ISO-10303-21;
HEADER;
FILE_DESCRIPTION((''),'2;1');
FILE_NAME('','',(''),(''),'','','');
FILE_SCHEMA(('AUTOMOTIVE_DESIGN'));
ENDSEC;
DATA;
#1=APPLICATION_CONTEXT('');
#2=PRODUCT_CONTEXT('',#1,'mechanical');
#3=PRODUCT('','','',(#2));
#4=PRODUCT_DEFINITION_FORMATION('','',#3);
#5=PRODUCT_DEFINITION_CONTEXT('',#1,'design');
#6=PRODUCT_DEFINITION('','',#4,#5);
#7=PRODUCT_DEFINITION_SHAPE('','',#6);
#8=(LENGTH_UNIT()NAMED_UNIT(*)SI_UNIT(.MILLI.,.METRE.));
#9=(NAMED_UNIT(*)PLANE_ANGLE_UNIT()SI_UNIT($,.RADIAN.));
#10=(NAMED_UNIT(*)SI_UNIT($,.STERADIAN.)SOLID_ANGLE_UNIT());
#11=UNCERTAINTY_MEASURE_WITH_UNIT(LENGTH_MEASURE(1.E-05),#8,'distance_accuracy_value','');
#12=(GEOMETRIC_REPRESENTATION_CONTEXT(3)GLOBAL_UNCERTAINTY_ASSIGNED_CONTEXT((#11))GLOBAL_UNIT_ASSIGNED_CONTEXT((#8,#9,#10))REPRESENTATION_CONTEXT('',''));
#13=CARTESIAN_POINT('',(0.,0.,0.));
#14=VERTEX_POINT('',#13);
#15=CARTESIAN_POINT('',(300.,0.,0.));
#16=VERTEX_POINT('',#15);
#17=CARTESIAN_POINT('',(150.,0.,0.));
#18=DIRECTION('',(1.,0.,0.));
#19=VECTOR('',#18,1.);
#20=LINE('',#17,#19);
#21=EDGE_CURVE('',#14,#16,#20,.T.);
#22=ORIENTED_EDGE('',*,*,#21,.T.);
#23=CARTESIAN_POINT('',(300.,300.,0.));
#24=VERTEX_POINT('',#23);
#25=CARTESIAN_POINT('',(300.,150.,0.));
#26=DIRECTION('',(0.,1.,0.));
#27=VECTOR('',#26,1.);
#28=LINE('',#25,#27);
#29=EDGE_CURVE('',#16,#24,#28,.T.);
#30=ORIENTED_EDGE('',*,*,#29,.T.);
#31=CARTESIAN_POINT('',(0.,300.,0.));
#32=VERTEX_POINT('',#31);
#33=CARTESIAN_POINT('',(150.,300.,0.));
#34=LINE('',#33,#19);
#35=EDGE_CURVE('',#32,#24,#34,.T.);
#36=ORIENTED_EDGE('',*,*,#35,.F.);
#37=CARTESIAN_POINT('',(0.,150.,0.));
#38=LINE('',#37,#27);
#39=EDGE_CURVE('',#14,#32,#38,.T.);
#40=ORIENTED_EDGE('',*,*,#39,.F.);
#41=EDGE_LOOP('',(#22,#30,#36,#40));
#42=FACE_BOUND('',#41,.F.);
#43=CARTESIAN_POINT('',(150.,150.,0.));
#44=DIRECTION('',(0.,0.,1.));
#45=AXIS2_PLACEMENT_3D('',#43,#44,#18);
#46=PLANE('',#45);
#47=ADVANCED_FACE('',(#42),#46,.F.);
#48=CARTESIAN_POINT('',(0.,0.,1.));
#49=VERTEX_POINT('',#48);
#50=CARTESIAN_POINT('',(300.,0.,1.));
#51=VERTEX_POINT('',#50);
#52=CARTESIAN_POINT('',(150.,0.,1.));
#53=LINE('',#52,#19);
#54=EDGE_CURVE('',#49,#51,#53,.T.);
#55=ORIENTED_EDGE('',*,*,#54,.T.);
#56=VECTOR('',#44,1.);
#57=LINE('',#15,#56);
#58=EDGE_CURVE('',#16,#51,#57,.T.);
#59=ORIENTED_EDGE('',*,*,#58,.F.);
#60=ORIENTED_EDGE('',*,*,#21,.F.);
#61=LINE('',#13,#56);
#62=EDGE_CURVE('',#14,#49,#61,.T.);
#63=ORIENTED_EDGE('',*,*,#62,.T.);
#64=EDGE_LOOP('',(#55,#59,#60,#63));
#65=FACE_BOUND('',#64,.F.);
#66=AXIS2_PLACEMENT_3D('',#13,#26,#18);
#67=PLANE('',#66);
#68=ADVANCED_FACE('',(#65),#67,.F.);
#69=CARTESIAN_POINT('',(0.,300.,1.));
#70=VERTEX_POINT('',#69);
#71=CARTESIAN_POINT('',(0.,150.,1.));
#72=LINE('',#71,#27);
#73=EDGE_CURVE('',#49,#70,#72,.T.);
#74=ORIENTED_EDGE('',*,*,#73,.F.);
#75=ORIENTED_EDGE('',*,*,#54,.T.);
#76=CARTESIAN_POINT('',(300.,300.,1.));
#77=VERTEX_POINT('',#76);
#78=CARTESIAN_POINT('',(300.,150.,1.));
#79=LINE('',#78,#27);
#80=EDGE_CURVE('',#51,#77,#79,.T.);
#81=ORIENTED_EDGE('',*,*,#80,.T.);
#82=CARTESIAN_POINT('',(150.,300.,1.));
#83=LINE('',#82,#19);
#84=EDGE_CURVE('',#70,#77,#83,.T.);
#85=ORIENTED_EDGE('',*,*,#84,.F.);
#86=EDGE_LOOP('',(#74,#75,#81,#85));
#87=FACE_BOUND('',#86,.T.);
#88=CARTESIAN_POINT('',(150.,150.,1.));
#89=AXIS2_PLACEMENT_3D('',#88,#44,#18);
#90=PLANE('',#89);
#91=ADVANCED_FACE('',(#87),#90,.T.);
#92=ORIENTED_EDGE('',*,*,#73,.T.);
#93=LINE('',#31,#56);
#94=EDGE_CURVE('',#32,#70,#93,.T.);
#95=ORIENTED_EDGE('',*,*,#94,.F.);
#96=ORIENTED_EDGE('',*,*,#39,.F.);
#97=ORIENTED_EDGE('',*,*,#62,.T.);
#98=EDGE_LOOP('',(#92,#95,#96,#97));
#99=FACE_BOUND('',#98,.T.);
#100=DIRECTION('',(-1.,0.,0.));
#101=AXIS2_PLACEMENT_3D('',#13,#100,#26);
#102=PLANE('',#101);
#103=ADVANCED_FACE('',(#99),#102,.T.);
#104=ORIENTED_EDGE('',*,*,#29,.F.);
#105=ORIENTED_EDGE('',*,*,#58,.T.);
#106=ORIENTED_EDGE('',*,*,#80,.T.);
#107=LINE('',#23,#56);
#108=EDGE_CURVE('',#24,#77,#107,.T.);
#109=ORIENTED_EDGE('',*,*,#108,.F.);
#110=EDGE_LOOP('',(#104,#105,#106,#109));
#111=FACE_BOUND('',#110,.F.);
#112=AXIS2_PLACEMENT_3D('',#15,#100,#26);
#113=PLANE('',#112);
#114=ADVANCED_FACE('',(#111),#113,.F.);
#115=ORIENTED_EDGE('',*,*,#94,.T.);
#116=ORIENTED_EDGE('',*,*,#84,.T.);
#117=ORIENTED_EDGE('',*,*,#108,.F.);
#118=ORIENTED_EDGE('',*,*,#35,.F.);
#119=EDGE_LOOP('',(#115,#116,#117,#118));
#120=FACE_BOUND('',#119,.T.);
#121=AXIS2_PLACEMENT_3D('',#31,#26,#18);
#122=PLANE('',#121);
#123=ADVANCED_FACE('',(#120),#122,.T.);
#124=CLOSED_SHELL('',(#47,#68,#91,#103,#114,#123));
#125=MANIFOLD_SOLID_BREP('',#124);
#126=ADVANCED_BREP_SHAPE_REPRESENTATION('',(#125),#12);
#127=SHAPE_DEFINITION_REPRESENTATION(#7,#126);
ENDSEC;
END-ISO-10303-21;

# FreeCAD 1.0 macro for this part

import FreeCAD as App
import Part
import Sketcher
from FreeCAD import Vector
Q = App.Units.Quantity


def add_polygon(sketch, points):
    """Adds a closed chain of lines whose ends are joined by coincident constraints."""
    first, n = sketch.GeometryCount, len(points)
    for a, b in zip(points, points[1:] + points[:1]):
        sketch.addGeometry(Part.LineSegment(App.Vector(*a, 0), App.Vector(*b, 0)), False)
    for i in range(n):
        sketch.addConstraint(Sketcher.Constraint("Coincident", first + i, 2, first + (i + 1) % n, 1))

doc = App.newDocument("Part")
body = doc.addObject("PartDesign::Body", "Body")

# Sketch on XY plane
sketch1 = body.newObject("Sketcher::SketchObject", "Sketch")
sketch1.AttachmentSupport = (doc.getObject("XY_Plane"), [""])
sketch1.MapMode = "FlatFace"
add_polygon(sketch1, [(0, 300), (0, 0), (300, 0), (300, 300)])  # lines 0-3
sketch1.addConstraint([
    Sketcher.Constraint("Vertical", 0),
    Sketcher.Constraint("Horizontal", 1),
    Sketcher.Constraint("Vertical", 2),
    Sketcher.Constraint("Horizontal", 3),
    Sketcher.Constraint("Coincident", 0, 2, -1, 1),
    Sketcher.Constraint("Equal", 3, 0),
    Sketcher.Constraint("DistanceX", 1, 1, 1, 2, Q("300 mm")),
])
pad1 = body.newObject("PartDesign::Pad", "Pad")
pad1.Profile = sketch1
pad1.Length = 1

doc.recompute()
